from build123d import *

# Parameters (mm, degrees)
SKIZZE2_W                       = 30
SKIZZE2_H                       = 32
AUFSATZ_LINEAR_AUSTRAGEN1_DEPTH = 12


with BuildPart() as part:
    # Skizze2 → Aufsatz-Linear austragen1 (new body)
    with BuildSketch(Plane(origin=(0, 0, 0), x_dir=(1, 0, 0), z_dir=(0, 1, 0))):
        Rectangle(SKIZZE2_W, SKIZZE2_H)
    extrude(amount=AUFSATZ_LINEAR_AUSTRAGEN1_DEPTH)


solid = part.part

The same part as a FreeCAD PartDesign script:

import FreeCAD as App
import Part
import Sketcher
from FreeCAD import Vector
Q = App.Units.Quantity

doc = App.newDocument("Part")
params = doc.addObject("Spreadsheet::Sheet", "Params")
for row, (alias, value) in enumerate([
    ("sketch1_width", "30 mm"),
    ("sketch1_height", "32 mm"),
    ("pad1_length", "12 mm"),
], start=1):
    params.set(f"A{row}", alias)
    params.set(f"B{row}", "=" + value)
    params.setAlias(f"B{row}", alias)

body = doc.addObject("PartDesign::Body", "Body")

sketch1 = body.newObject("Sketcher::SketchObject", "Sketch")
sketch1.AttachmentSupport = (doc.getObject("XZ_Plane"), [""])
sketch1.MapMode = "FlatFace"
sketch1.addGeometry([
    Part.LineSegment(Vector(-15, -16, 0), Vector(-15, 16, 0)),
    Part.LineSegment(Vector(-15, 16, 0), Vector(15, 16, 0)),
    Part.LineSegment(Vector(15, 16, 0), Vector(15, -16, 0)),
    Part.LineSegment(Vector(15, -16, 0), Vector(-15, -16, 0)),
], False)
sketch1.addConstraint([
    Sketcher.Constraint("Coincident", 0, 2, 1, 1),
    Sketcher.Constraint("Coincident", 1, 2, 2, 1),
    Sketcher.Constraint("Coincident", 2, 2, 3, 1),
    Sketcher.Constraint("Coincident", 3, 2, 0, 1),
    Sketcher.Constraint("Vertical", 0),
    Sketcher.Constraint("Horizontal", 1),
    Sketcher.Constraint("Vertical", 2),
    Sketcher.Constraint("Horizontal", 3),
    Sketcher.Constraint("Symmetric", 0, 2, 2, 2, -1, 1),
    Sketcher.Constraint("DistanceX", 1, 1, 1, 2, Q("30 mm")),
    Sketcher.Constraint("DistanceY", 0, 1, 0, 2, Q("32 mm")),
])
sketch1.setExpression("Constraints[9]", "Params.sketch1_width")
sketch1.setExpression("Constraints[10]", "Params.sketch1_height")
pad1 = body.newObject("PartDesign::Pad", "Pad")
pad1.Profile = sketch1
pad1.setExpression("Length", "Params.pad1_length")
pad1.Reversed = True

doc.recompute()
